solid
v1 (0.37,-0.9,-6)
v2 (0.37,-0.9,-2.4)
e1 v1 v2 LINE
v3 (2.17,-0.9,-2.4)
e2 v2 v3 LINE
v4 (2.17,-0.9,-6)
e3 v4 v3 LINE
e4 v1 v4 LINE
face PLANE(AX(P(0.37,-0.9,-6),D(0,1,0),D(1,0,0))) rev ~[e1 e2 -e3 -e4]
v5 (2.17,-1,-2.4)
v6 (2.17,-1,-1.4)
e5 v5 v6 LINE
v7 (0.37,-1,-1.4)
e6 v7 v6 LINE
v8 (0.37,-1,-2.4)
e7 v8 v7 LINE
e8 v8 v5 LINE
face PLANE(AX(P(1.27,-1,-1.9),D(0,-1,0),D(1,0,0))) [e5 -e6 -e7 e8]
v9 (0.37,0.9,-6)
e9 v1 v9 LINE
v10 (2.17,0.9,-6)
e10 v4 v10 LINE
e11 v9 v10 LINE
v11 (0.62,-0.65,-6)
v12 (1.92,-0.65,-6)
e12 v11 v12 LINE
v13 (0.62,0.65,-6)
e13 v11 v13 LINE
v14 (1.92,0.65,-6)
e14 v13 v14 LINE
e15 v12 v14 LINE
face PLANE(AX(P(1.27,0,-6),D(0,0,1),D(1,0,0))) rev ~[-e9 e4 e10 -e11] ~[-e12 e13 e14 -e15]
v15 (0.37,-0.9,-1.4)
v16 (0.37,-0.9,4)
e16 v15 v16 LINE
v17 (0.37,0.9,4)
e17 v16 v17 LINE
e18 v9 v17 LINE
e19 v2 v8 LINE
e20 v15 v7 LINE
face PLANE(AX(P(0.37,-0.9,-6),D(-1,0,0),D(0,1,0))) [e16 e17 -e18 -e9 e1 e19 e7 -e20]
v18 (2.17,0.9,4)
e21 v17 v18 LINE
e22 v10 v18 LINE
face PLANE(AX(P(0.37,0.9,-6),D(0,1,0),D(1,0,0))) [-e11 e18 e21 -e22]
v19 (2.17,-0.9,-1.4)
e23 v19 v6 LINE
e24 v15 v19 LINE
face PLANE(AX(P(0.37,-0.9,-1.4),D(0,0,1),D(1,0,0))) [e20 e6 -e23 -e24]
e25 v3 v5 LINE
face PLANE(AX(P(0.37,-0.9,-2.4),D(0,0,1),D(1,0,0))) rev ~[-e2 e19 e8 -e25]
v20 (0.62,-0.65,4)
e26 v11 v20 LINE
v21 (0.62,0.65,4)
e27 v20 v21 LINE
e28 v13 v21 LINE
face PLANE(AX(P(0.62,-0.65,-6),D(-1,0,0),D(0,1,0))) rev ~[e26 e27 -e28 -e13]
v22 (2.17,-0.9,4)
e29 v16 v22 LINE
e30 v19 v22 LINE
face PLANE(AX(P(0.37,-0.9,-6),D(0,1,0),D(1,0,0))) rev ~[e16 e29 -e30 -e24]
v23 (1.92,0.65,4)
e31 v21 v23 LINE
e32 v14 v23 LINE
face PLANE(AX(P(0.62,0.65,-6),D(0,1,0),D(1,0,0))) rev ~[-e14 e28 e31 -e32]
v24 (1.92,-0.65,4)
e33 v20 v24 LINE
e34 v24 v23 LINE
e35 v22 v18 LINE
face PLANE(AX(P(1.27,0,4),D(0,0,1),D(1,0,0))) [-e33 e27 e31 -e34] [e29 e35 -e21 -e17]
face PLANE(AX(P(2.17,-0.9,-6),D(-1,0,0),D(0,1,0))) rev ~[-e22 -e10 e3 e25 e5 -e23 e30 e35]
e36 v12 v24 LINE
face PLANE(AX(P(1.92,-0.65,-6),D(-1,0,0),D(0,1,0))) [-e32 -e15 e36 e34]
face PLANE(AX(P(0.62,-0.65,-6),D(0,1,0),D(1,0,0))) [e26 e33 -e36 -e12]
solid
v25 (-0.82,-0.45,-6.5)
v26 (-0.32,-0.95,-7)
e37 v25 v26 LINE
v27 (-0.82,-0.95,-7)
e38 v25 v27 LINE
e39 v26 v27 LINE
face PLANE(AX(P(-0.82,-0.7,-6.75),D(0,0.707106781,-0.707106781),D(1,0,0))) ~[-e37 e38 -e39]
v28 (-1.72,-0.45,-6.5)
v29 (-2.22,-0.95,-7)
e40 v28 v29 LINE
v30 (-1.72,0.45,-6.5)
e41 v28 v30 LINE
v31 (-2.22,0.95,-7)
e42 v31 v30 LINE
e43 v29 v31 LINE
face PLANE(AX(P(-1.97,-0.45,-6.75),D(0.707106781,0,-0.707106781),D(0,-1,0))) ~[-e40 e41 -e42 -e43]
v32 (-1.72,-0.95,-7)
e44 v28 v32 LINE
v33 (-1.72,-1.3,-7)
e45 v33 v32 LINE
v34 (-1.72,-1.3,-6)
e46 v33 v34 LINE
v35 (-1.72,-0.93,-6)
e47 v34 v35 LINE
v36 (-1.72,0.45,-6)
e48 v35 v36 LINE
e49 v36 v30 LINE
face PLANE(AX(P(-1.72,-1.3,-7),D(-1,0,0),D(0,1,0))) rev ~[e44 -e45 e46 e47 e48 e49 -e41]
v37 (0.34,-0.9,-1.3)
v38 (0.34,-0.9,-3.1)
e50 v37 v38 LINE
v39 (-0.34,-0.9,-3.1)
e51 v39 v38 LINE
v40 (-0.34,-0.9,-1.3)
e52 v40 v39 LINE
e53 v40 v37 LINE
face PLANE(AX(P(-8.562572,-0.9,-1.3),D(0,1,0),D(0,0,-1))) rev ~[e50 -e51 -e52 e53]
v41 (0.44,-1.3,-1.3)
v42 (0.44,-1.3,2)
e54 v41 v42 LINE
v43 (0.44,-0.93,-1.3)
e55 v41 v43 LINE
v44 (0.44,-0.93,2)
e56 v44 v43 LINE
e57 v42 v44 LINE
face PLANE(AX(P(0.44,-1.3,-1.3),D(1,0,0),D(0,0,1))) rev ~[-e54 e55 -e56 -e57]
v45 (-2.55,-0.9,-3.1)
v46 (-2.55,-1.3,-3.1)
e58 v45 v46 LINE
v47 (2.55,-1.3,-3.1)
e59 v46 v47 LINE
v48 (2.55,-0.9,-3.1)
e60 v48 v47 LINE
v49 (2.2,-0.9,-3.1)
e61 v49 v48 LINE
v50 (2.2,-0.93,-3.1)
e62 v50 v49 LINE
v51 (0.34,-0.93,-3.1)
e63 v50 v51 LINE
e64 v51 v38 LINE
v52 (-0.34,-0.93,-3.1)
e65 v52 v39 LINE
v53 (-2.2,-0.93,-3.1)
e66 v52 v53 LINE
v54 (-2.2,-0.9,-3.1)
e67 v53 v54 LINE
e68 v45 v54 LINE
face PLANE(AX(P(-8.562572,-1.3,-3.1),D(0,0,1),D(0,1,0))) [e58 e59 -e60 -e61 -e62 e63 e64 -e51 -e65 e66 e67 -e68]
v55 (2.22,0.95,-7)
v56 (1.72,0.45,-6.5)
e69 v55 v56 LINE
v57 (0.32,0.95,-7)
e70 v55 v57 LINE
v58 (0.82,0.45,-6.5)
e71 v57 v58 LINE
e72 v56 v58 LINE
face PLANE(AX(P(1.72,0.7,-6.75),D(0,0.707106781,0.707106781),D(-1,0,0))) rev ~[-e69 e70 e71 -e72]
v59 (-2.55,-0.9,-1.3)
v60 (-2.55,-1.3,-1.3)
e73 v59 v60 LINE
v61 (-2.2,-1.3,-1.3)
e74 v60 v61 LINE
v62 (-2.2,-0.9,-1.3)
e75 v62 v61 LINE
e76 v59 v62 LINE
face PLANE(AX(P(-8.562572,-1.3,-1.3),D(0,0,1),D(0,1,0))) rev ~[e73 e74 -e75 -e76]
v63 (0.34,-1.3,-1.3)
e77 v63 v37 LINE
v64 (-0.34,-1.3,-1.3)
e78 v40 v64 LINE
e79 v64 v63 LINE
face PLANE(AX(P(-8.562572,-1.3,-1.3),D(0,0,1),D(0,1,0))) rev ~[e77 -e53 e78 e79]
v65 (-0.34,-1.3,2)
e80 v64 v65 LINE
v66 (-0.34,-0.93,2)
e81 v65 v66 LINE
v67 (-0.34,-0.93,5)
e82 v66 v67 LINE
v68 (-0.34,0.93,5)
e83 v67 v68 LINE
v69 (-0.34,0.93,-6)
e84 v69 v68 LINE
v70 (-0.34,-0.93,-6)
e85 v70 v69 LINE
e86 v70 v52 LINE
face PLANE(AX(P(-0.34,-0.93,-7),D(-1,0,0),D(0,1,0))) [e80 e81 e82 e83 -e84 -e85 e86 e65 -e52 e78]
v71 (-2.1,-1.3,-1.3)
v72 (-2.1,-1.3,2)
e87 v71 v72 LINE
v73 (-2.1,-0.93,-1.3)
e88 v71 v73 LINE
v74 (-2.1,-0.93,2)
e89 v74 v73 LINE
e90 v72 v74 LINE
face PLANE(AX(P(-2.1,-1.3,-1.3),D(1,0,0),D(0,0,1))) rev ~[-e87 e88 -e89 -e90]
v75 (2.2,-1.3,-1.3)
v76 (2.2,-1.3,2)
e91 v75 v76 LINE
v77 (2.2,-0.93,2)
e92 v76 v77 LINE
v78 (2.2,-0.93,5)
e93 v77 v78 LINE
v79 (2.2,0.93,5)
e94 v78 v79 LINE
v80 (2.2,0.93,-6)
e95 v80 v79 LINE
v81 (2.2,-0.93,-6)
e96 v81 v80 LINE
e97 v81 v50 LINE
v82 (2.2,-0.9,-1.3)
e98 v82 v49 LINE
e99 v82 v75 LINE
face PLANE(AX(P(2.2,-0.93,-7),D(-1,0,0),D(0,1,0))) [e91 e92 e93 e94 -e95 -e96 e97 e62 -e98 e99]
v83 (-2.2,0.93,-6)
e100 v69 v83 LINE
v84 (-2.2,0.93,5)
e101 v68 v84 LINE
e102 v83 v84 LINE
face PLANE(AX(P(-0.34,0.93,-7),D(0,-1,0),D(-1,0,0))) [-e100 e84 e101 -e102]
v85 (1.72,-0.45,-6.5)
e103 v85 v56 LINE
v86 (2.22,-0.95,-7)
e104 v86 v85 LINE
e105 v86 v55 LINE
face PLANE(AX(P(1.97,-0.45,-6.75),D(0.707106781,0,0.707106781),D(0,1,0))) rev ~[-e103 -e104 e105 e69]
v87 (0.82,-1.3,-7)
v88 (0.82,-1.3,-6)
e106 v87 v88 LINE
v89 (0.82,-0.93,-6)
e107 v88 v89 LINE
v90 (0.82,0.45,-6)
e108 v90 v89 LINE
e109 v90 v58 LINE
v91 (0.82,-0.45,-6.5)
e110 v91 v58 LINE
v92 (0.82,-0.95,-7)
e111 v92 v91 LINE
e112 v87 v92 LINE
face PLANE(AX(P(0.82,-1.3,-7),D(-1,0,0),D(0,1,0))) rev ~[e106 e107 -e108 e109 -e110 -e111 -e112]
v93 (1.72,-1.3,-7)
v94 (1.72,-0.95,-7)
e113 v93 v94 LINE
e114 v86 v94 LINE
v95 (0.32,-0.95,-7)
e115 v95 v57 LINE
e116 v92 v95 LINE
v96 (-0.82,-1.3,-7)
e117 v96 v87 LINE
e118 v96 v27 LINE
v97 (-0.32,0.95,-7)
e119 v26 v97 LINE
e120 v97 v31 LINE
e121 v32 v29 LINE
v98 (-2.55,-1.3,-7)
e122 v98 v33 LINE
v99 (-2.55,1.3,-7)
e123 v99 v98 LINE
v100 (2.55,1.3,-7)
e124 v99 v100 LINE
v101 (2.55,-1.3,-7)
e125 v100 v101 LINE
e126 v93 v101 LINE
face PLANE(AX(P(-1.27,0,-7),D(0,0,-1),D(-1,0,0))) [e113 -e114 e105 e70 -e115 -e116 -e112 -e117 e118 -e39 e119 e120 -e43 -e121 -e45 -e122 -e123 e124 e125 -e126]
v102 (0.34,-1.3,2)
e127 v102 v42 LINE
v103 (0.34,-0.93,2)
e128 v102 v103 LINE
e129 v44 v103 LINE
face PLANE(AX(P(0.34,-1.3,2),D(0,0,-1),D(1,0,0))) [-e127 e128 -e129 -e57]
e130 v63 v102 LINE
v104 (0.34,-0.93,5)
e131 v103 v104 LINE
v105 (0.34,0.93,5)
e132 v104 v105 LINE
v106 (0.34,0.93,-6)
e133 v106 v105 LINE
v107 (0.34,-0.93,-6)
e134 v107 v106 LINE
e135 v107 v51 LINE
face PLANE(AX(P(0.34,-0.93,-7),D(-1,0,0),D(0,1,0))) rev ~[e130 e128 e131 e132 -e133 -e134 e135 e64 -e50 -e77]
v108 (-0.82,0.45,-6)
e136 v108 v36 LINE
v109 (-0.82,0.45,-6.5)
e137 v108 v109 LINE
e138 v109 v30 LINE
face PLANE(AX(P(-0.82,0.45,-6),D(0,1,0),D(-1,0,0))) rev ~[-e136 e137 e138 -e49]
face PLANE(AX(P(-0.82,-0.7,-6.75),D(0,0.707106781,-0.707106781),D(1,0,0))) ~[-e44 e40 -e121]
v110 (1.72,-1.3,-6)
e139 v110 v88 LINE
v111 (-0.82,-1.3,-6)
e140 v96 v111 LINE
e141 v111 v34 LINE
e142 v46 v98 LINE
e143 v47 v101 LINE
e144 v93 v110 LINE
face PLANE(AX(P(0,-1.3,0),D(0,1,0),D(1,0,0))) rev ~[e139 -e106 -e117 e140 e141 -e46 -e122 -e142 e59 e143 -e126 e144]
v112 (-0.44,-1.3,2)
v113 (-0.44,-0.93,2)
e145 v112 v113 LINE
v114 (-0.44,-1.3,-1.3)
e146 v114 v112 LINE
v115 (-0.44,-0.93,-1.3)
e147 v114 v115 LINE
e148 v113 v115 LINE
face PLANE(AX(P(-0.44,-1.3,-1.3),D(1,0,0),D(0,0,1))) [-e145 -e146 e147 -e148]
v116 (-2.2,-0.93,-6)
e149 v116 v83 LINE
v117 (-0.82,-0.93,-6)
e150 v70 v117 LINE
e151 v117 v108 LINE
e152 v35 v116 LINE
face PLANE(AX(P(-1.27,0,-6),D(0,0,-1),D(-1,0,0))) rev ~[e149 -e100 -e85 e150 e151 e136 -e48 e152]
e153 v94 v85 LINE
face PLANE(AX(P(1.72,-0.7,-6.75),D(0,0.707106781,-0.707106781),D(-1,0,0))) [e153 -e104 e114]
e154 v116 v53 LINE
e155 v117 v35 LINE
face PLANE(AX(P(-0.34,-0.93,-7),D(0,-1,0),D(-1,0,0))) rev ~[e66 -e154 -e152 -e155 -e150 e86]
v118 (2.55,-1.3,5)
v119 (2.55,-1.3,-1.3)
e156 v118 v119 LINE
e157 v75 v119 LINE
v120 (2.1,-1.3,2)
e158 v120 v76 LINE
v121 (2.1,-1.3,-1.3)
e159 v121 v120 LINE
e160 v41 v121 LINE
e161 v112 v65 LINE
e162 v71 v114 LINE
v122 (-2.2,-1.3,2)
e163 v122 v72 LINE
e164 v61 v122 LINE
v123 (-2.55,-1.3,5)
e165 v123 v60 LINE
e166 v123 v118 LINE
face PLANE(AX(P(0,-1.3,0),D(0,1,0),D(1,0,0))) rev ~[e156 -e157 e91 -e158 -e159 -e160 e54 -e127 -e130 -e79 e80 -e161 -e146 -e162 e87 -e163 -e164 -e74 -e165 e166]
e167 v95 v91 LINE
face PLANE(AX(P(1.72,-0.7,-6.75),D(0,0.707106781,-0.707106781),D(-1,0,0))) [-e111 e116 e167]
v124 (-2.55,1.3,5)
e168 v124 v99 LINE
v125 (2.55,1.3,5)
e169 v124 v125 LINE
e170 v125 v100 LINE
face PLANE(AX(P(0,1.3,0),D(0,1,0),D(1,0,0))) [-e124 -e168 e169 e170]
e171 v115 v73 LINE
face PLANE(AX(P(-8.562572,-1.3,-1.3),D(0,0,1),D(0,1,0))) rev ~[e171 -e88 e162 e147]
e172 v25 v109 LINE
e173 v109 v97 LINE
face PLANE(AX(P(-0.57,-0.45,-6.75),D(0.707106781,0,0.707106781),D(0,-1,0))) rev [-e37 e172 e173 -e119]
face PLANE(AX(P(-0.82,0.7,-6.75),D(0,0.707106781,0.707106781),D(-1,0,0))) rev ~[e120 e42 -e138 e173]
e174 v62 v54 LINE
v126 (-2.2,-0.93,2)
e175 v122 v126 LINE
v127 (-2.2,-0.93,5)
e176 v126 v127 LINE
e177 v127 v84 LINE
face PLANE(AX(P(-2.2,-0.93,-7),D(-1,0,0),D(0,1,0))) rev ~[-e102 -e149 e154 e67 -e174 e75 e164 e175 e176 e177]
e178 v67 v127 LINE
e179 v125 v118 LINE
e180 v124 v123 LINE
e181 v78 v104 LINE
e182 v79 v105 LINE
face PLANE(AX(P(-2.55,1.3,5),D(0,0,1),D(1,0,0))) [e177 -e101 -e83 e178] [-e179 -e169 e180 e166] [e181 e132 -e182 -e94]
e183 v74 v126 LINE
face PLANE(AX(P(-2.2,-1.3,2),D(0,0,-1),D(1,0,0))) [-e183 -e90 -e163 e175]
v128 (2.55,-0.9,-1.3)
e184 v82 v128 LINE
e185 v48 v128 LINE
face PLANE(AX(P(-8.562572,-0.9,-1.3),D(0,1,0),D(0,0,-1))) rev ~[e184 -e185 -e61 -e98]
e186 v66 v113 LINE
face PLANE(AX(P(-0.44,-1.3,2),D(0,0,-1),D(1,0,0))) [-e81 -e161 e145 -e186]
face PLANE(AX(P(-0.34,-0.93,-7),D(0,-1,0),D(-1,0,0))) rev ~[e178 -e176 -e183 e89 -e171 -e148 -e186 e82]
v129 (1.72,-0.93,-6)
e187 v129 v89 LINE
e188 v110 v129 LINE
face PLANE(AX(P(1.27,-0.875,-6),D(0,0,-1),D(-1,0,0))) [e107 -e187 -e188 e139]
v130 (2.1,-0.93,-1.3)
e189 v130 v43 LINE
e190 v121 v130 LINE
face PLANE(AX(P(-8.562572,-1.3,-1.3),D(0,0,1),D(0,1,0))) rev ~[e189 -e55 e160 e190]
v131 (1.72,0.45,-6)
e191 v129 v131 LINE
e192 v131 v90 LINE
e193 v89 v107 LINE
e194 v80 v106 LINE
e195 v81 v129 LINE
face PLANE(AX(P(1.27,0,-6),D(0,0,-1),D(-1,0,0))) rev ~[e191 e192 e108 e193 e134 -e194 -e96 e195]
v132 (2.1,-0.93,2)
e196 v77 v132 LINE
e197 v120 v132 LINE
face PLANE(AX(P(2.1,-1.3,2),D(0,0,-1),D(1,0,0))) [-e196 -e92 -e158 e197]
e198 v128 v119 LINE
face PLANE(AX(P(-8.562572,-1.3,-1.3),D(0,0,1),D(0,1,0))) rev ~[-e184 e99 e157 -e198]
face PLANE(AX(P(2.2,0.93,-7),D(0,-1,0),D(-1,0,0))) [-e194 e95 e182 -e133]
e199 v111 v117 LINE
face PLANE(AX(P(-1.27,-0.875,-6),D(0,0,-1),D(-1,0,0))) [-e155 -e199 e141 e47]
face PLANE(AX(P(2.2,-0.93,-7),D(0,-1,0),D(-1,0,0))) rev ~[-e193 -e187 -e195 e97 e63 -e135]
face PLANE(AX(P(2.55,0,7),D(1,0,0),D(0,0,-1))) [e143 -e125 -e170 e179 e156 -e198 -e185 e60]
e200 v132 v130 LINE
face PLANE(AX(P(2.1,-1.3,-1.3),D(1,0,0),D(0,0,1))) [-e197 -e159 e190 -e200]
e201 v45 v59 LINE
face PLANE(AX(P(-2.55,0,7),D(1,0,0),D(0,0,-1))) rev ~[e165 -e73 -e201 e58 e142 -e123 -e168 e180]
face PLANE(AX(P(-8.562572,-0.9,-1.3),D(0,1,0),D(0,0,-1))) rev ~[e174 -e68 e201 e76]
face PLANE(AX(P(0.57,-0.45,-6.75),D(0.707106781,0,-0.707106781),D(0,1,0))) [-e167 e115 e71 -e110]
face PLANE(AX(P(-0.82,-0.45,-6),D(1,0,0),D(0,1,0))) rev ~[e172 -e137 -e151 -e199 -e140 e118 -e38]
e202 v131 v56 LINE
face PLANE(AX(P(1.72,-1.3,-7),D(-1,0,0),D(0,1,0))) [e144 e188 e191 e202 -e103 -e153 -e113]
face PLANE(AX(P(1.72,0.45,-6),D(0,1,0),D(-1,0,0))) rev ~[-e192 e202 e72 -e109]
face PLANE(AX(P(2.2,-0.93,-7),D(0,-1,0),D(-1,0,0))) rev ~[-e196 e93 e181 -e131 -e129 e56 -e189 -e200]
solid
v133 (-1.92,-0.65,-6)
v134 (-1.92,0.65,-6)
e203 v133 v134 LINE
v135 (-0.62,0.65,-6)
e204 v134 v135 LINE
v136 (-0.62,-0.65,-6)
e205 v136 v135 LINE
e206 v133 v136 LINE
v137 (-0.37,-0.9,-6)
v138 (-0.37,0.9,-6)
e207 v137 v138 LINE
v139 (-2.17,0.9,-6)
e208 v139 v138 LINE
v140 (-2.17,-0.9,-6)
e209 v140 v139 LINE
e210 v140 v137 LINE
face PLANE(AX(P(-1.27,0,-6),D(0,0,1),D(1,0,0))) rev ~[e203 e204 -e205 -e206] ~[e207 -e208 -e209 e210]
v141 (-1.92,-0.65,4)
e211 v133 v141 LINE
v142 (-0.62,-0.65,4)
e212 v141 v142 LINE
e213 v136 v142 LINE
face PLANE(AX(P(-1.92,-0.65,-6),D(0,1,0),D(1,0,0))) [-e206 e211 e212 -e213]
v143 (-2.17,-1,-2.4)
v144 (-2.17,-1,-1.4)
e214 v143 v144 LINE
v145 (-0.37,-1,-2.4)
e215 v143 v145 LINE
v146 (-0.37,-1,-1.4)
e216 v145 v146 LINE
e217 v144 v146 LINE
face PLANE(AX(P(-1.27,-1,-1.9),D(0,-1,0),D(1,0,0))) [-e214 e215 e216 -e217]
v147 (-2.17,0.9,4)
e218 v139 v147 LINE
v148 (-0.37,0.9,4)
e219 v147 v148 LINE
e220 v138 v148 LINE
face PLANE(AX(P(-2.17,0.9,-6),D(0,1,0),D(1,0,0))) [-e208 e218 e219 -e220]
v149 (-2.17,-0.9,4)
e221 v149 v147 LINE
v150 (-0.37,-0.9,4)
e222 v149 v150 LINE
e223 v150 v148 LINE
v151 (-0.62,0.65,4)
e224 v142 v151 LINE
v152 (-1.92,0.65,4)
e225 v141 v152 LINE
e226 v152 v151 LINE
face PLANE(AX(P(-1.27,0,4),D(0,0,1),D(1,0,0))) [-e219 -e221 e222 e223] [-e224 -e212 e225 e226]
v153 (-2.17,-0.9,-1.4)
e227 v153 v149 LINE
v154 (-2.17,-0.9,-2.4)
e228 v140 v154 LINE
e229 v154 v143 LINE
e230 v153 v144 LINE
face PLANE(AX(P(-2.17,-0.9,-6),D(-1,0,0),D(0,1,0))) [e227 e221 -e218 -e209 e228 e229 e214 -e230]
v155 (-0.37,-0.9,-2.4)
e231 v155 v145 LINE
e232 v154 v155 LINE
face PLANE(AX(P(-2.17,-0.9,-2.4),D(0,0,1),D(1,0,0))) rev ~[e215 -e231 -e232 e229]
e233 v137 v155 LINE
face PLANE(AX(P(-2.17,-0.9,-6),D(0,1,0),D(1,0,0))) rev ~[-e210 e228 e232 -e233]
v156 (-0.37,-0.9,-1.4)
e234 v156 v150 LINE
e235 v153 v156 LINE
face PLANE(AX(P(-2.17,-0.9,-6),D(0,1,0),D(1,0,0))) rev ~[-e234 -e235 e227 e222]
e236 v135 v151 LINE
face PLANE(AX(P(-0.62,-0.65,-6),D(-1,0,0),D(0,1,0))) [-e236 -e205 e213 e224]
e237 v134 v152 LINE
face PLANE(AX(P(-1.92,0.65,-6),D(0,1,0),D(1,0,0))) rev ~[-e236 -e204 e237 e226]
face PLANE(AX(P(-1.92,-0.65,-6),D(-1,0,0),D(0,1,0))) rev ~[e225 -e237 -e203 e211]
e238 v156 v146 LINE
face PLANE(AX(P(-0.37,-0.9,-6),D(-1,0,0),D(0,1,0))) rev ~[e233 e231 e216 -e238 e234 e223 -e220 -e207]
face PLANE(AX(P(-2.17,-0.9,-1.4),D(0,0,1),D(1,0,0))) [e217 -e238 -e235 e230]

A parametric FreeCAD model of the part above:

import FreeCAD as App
import Part
import Sketcher

V = App.Vector
Q = App.Units.Quantity


def edges_at(feature, points):
    """Names of the edges that pass closest to the given points."""
    edges = feature.Shape.Edges
    near = lambda p: min(range(len(edges)), key=lambda i: edges[i].distToShape(Part.Vertex(*p))[0])
    return sorted({f"Edge{near(p) + 1}" for p in points})

doc = App.newDocument("Part")
params = doc.addObject("Spreadsheet::Sheet", "Params")
for row, (alias, value) in enumerate([
    ("sketch1_height", "14 mm"),
    ("sketch1_width", "5.1 mm"),
    ("pad1_length", "2.6 mm"),
    ("sketch2_width", "1.86 mm"),
    ("sketch3_width", "0.4 mm"),
    ("sketch3_height", "1.8 mm"),
    ("sketch4_width", "0.1 mm"),
    ("sketch4_height", "3.3 mm"),
    ("sketch5_width", "0.1 mm"),
    ("sketch5_height", "3.3 mm"),
    ("sketch6_width", "0.1 mm"),
    ("sketch6_height", "3.3 mm"),
    ("sketch7_width", "0.1 mm"),
    ("sketch7_height", "3.3 mm"),
    ("sketch8_width", "0.9 mm"),
    ("sketch8_width2", "1.86 mm"),
    ("pad2_length", "1 mm"),
    ("chamfer_size", "0.5 mm"),
    ("sketch9_height", "2 mm"),
    ("sketch9_width", "5.1 mm"),
    ("sketch10_width", "0.9 mm"),
    ("sketch10_height", "0.85 mm"),
    ("pocket8_length", "1 mm"),
    ("sketch11_width", "1.8 mm"),
    ("sketch11_width2", "1.3 mm"),
    ("pad3_length", "10 mm"),
    ("sketch12_width", "1.8 mm"),
    ("sketch12_width2", "1.3 mm"),
    ("pad4_length", "10 mm"),
    ("sketch13_height", "1 mm"),
    ("sketch13_width", "1.8 mm"),
    ("pad5_length", "0.1 mm"),
], start=1):
    params.set(f"A{row}", alias)
    params.set(f"B{row}", "=" + value)
    params.setAlias(f"B{row}", alias)

body = doc.addObject("PartDesign::Body", "Body")

# Sketch on XZ plane
sketch1 = doc.addObject("Sketcher::SketchObject", "Sketch")
body.addObject(sketch1)
sketch1.AttachmentSupport = (doc.XZ_Plane, [""])
sketch1.MapMode = "FlatFace"
sketch1.addGeometry([
    Part.LineSegment(V(-3, -7, 0), V(-3, 7, 0)),
    Part.LineSegment(V(-3, 7, 0), V(3, 7, 0)),
    Part.LineSegment(V(3, 7, 0), V(3, -7, 0)),
    Part.LineSegment(V(3, -7, 0), V(-3, -7, 0)),
], False)
sketch1.addConstraint([
    Sketcher.Constraint("Coincident", 0, 2, 1, 1),
    Sketcher.Constraint("Coincident", 1, 2, 2, 1),
    Sketcher.Constraint("Coincident", 2, 2, 3, 1),
    Sketcher.Constraint("Coincident", 3, 2, 0, 1),
    Sketcher.Constraint("Vertical", 0),
    Sketcher.Constraint("Horizontal", 1),
    Sketcher.Constraint("Vertical", 2),
    Sketcher.Constraint("Horizontal", 3),
    Sketcher.Constraint("Symmetric", 0, 2, 2, 2, -1, 1),
    Sketcher.Constraint("DistanceY", 0, 1, 0, 2, Q("14 mm")),
    Sketcher.Constraint("DistanceX", 1, 1, 1, 2, Q("5.1 mm")),
])
sketch1.setExpression("Constraints[9]", "Params.sketch1_height")
sketch1.setExpression("Constraints[10]", "Params.sketch1_width")
pad1 = doc.addObject("PartDesign::Pad", "Pad")
body.addObject(pad1)
pad1.Profile = sketch1
pad1.setExpression("Length", "Params.pad1_length")
pad1.Midplane = True

# Sketch on XY plane
sketch2 = doc.addObject("Sketcher::SketchObject", "Sketch001")
body.addObject(sketch2)
sketch2.AttachmentSupport = (doc.XY_Plane, [""])
sketch2.MapMode = "FlatFace"
sketch2.AttachmentOffset = App.Placement(V(0, 0, -7), App.Rotation())
sketch2.addGeometry([
    Part.LineSegment(V(2.2, 0.9, 0), V(2.2, -0.9, 0)),  # 0
    Part.LineSegment(V(2.2, -0.9, 0), V(0.3, -0.9, 0)),  # 1
    Part.LineSegment(V(0.3, -0.9, 0), V(0.3, 0.9, 0)),  # 2
    Part.LineSegment(V(0.3, 0.9, 0), V(2.2, 0.9, 0)),  # 3
    Part.LineSegment(V(-0.3, 0.9, 0), V(-0.3, -0.9, 0)),  # 4
    Part.LineSegment(V(-0.3, -0.9, 0), V(-2.2, -0.9, 0)),  # 5
    Part.LineSegment(V(-2.2, -0.9, 0), V(-2.2, 0.9, 0)),  # 6
    Part.LineSegment(V(-2.2, 0.9, 0), V(-0.3, 0.9, 0)),  # 7
], False)
sketch2.addConstraint([
    Sketcher.Constraint("Coincident", 0, 2, 1, 1),
    Sketcher.Constraint("Coincident", 1, 2, 2, 1),
    Sketcher.Constraint("Coincident", 2, 2, 3, 1),
    Sketcher.Constraint("Coincident", 3, 2, 0, 1),
    Sketcher.Constraint("Coincident", 4, 2, 5, 1),
    Sketcher.Constraint("Coincident", 5, 2, 6, 1),
    Sketcher.Constraint("Coincident", 6, 2, 7, 1),
    Sketcher.Constraint("Coincident", 7, 2, 4, 1),
    Sketcher.Constraint("Vertical", 0),
    Sketcher.Constraint("Horizontal", 1),
    Sketcher.Constraint("Vertical", 2),
    Sketcher.Constraint("Horizontal", 3),
    Sketcher.Constraint("Vertical", 4),
    Sketcher.Constraint("Horizontal", 5),
    Sketcher.Constraint("Vertical", 6),
    Sketcher.Constraint("Horizontal", 7),
    Sketcher.Constraint("Symmetric", 2, 2, 4, 2, -1, 1),
    Sketcher.Constraint("Symmetric", 0, 2, 6, 2, -1, 1),
    Sketcher.Constraint("Horizontal", 1, 2, 4, 2),
    Sketcher.Constraint("Equal", 7, 0),
    Sketcher.Constraint("DistanceX", 1, 2, 1, 1, Q("1.86 mm")),
    Sketcher.Constraint("DistanceX", -1, 1, 0, 2, Q("2.2 mm")),
])
sketch2.setExpression("Constraints[20]", "Params.sketch2_width")
pocket1 = doc.addObject("PartDesign::Pocket", "Pocket")
body.addObject(pocket1)
pocket1.Profile = sketch2
pocket1.Type = "ThroughAll"
pocket1.Reversed = True

# Sketch on YZ plane
sketch3 = doc.addObject("Sketcher::SketchObject", "Sketch002")
body.addObject(sketch3)
sketch3.AttachmentSupport = (doc.YZ_Plane, [""])
sketch3.MapMode = "FlatFace"
sketch3.addGeometry([
    Part.LineSegment(V(-0.9, -1.3, 0), V(-1.3, -1.3, 0)),
    Part.LineSegment(V(-1.3, -1.3, 0), V(-1.3, -3.1, 0)),
    Part.LineSegment(V(-1.3, -3.1, 0), V(-0.9, -3.1, 0)),
    Part.LineSegment(V(-0.9, -3.1, 0), V(-0.9, -1.3, 0)),
], False)
sketch3.addConstraint([
    Sketcher.Constraint("Coincident", 0, 2, 1, 1),
    Sketcher.Constraint("Coincident", 1, 2, 2, 1),
    Sketcher.Constraint("Coincident", 2, 2, 3, 1),
    Sketcher.Constraint("Coincident", 3, 2, 0, 1),
    Sketcher.Constraint("Horizontal", 0),
    Sketcher.Constraint("Vertical", 1),
    Sketcher.Constraint("Horizontal", 2),
    Sketcher.Constraint("Vertical", 3),
    Sketcher.Constraint("DistanceX", 0, 2, 0, 1, Q("0.4 mm")),
    Sketcher.Constraint("DistanceY", 1, 2, 1, 1, Q("1.8 mm")),
    Sketcher.Constraint("DistanceX", 0, 2, -1, 1, Q("1.3 mm")),
    Sketcher.Constraint("DistanceY", 0, 2, -1, 1, Q("1.3 mm")),
])
sketch3.setExpression("Constraints[8]", "Params.sketch3_width")
sketch3.setExpression("Constraints[9]", "Params.sketch3_height")
pocket2 = doc.addObject("PartDesign::Pocket", "Pocket001")
body.addObject(pocket2)
pocket2.Profile = sketch3
pocket2.Type = "ThroughAll"
pocket2.Midplane = True

# Sketch on XZ plane
sketch4 = doc.addObject("Sketcher::SketchObject", "Sketch003")
body.addObject(sketch4)
sketch4.AttachmentSupport = (doc.XZ_Plane, [""])
sketch4.MapMode = "FlatFace"
sketch4.AttachmentOffset = App.Placement(V(0, 0, 1.3), App.Rotation())
sketch4.addGeometry([
    Part.LineSegment(V(-2.2, 2, 0), V(-2.2, -1.3, 0)),
    Part.LineSegment(V(-2.2, -1.3, 0), V(-2.1, -1.3, 0)),
    Part.LineSegment(V(-2.1, -1.3, 0), V(-2.1, 2, 0)),
    Part.LineSegment(V(-2.1, 2, 0), V(-2.2, 2, 0)),
], False)
sketch4.addConstraint([
    Sketcher.Constraint("Coincident", 0, 2, 1, 1),
    Sketcher.Constraint("Coincident", 1, 2, 2, 1),
    Sketcher.Constraint("Coincident", 2, 2, 3, 1),
    Sketcher.Constraint("Coincident", 3, 2, 0, 1),
    Sketcher.Constraint("Vertical", 0),
    Sketcher.Constraint("Horizontal", 1),
    Sketcher.Constraint("Vertical", 2),
    Sketcher.Constraint("Horizontal", 3),
    Sketcher.Constraint("DistanceX", 1, 1, 1, 2, Q("0.1 mm")),
    Sketcher.Constraint("DistanceY", 0, 2, 0, 1, Q("3.3 mm")),
    Sketcher.Constraint("DistanceY", -1, 1, 2, 2, Q("2 mm")),
    Sketcher.Constraint("DistanceX", 0, 2, -1, 1, Q("2.2 mm")),
])
sketch4.setExpression("Constraints[8]", "Params.sketch4_width")
sketch4.setExpression("Constraints[9]", "Params.sketch4_height")
pocket3 = doc.addObject("PartDesign::Pocket", "Pocket002")
body.addObject(pocket3)
pocket3.Profile = sketch4
pocket3.Type = "UpToFirst"

# Sketch on XZ plane
sketch5 = doc.addObject("Sketcher::SketchObject", "Sketch004")
body.addObject(sketch5)
sketch5.AttachmentSupport = (doc.XZ_Plane, [""])
sketch5.MapMode = "FlatFace"
sketch5.AttachmentOffset = App.Placement(V(0, 0, 1.3), App.Rotation())
sketch5.addGeometry([
    Part.LineSegment(V(-0.44, 2, 0), V(-0.44, -1.3, 0)),
    Part.LineSegment(V(-0.44, -1.3, 0), V(-0.34, -1.3, 0)),
    Part.LineSegment(V(-0.34, -1.3, 0), V(-0.34, 2, 0)),
    Part.LineSegment(V(-0.34, 2, 0), V(-0.44, 2, 0)),
], False)
sketch5.addConstraint([
    Sketcher.Constraint("Coincident", 0, 2, 1, 1),
    Sketcher.Constraint("Coincident", 1, 2, 2, 1),
    Sketcher.Constraint("Coincident", 2, 2, 3, 1),
    Sketcher.Constraint("Coincident", 3, 2, 0, 1),
    Sketcher.Constraint("Vertical", 0),
    Sketcher.Constraint("Horizontal", 1),
    Sketcher.Constraint("Vertical", 2),
    Sketcher.Constraint("Horizontal", 3),
    Sketcher.Constraint("DistanceX", 1, 1, 1, 2, Q("0.1 mm")),
    Sketcher.Constraint("DistanceY", 0, 2, 0, 1, Q("3.3 mm")),
    Sketcher.Constraint("DistanceY", -1, 1, 2, 2, Q("2 mm")),
    Sketcher.Constraint("DistanceX", 0, 2, -1, 1, Q("0.44 mm")),
])
sketch5.setExpression("Constraints[8]", "Params.sketch5_width")
sketch5.setExpression("Constraints[9]", "Params.sketch5_height")
pocket4 = doc.addObject("PartDesign::Pocket", "Pocket003")
body.addObject(pocket4)
pocket4.Profile = sketch5
pocket4.Type = "UpToFirst"

# Sketch on XZ plane
sketch6 = doc.addObject("Sketcher::SketchObject", "Sketch005")
body.addObject(sketch6)
sketch6.AttachmentSupport = (doc.XZ_Plane, [""])
sketch6.MapMode = "FlatFace"
sketch6.AttachmentOffset = App.Placement(V(0, 0, 1.3), App.Rotation())
sketch6.addGeometry([
    Part.LineSegment(V(0.34, 2, 0), V(0.34, -1.3, 0)),
    Part.LineSegment(V(0.34, -1.3, 0), V(0.44, -1.3, 0)),
    Part.LineSegment(V(0.44, -1.3, 0), V(0.44, 2, 0)),
    Part.LineSegment(V(0.44, 2, 0), V(0.34, 2, 0)),
], False)
sketch6.addConstraint([
    Sketcher.Constraint("Coincident", 0, 2, 1, 1),
    Sketcher.Constraint("Coincident", 1, 2, 2, 1),
    Sketcher.Constraint("Coincident", 2, 2, 3, 1),
    Sketcher.Constraint("Coincident", 3, 2, 0, 1),
    Sketcher.Constraint("Vertical", 0),
    Sketcher.Constraint("Horizontal", 1),
    Sketcher.Constraint("Vertical", 2),
    Sketcher.Constraint("Horizontal", 3),
    Sketcher.Constraint("DistanceX", 1, 1, 1, 2, Q("0.1 mm")),
    Sketcher.Constraint("DistanceY", 0, 2, 0, 1, Q("3.3 mm")),
    Sketcher.Constraint("DistanceY", -1, 1, 2, 2, Q("2 mm")),
    Sketcher.Constraint("DistanceX", -1, 1, 0, 2, Q("0.34 mm")),
])
sketch6.setExpression("Constraints[8]", "Params.sketch6_width")
sketch6.setExpression("Constraints[9]", "Params.sketch6_height")
pocket5 = doc.addObject("PartDesign::Pocket", "Pocket004")
body.addObject(pocket5)
pocket5.Profile = sketch6
pocket5.Type = "UpToFirst"

# Sketch on XZ plane
sketch7 = doc.addObject("Sketcher::SketchObject", "Sketch006")
body.addObject(sketch7)
sketch7.AttachmentSupport = (doc.XZ_Plane, [""])
sketch7.MapMode = "FlatFace"
sketch7.AttachmentOffset = App.Placement(V(0, 0, 1.3), App.Rotation())
sketch7.addGeometry([
    Part.LineSegment(V(2.1, 2, 0), V(2.1, -1.3, 0)),
    Part.LineSegment(V(2.1, -1.3, 0), V(2.2, -1.3, 0)),
    Part.LineSegment(V(2.2, -1.3, 0), V(2.2, 2, 0)),
    Part.LineSegment(V(2.2, 2, 0), V(2.1, 2, 0)),
], False)
sketch7.addConstraint([
    Sketcher.Constraint("Coincident", 0, 2, 1, 1),
    Sketcher.Constraint("Coincident", 1, 2, 2, 1),
    Sketcher.Constraint("Coincident", 2, 2, 3, 1),
    Sketcher.Constraint("Coincident", 3, 2, 0, 1),
    Sketcher.Constraint("Vertical", 0),
    Sketcher.Constraint("Horizontal", 1),
    Sketcher.Constraint("Vertical", 2),
    Sketcher.Constraint("Horizontal", 3),
    Sketcher.Constraint("DistanceX", 1, 1, 1, 2, Q("0.1 mm")),
    Sketcher.Constraint("DistanceY", 0, 2, 0, 1, Q("3.3 mm")),
    Sketcher.Constraint("DistanceY", -1, 1, 2, 2, Q("2 mm")),
    Sketcher.Constraint("DistanceX", -1, 1, 0, 2, Q("2.1 mm")),
])
sketch7.setExpression("Constraints[8]", "Params.sketch7_width")
sketch7.setExpression("Constraints[9]", "Params.sketch7_height")
pocket6 = doc.addObject("PartDesign::Pocket", "Pocket005")
body.addObject(pocket6)
pocket6.Profile = sketch7
pocket6.Type = "UpToFirst"

# Sketch on XY plane
sketch8 = doc.addObject("Sketcher::SketchObject", "Sketch007")
body.addObject(sketch8)
sketch8.AttachmentSupport = (doc.XY_Plane, [""])
sketch8.MapMode = "FlatFace"
sketch8.AttachmentOffset = App.Placement(V(0, 0, -6), App.Rotation())
sketch8.addGeometry([
    Part.LineSegment(V(-0.3, 0.9, 0), V(-0.3, -0.9, 0)),  # 0
    Part.LineSegment(V(-0.3, -0.9, 0), V(-2.2, -0.9, 0)),  # 1
    Part.LineSegment(V(-2.2, -0.9, 0), V(-2.2, 0.9, 0)),  # 2
    Part.LineSegment(V(-2.2, 0.9, 0), V(-0.3, 0.9, 0)),  # 3
    Part.LineSegment(V(-1.7, -0.5, 0), V(-0.8, -0.5, 0)),  # 4
    Part.LineSegment(V(-0.8, -0.5, 0), V(-0.8, 0.5, 0)),  # 5
    Part.LineSegment(V(-0.8, 0.5, 0), V(-1.7, 0.5, 0)),  # 6
    Part.LineSegment(V(-1.7, 0.5, 0), V(-1.7, -0.5, 0)),  # 7
    Part.LineSegment(V(2.2, 0.9, 0), V(2.2, -0.9, 0)),  # 8
    Part.LineSegment(V(2.2, -0.9, 0), V(0.3, -0.9, 0)),  # 9
    Part.LineSegment(V(0.3, -0.9, 0), V(0.3, 0.9, 0)),  # 10
    Part.LineSegment(V(0.3, 0.9, 0), V(2.2, 0.9, 0)),  # 11
    Part.LineSegment(V(0.8, -0.5, 0), V(1.7, -0.5, 0)),  # 12
    Part.LineSegment(V(1.7, -0.5, 0), V(1.7, 0.5, 0)),  # 13
    Part.LineSegment(V(1.7, 0.5, 0), V(0.8, 0.5, 0)),  # 14
    Part.LineSegment(V(0.8, 0.5, 0), V(0.8, -0.5, 0)),  # 15
], False)
sketch8.addConstraint([
    Sketcher.Constraint("Coincident", 0, 2, 1, 1),
    Sketcher.Constraint("Coincident", 1, 2, 2, 1),
    Sketcher.Constraint("Coincident", 2, 2, 3, 1),
    Sketcher.Constraint("Coincident", 3, 2, 0, 1),
    Sketcher.Constraint("Coincident", 4, 2, 5, 1),
    Sketcher.Constraint("Coincident", 5, 2, 6, 1),
    Sketcher.Constraint("Coincident", 6, 2, 7, 1),
    Sketcher.Constraint("Coincident", 7, 2, 4, 1),
    Sketcher.Constraint("Coincident", 8, 2, 9, 1),
    Sketcher.Constraint("Coincident", 9, 2, 10, 1),
    Sketcher.Constraint("Coincident", 10, 2, 11, 1),
    Sketcher.Constraint("Coincident", 11, 2, 8, 1),
    Sketcher.Constraint("Coincident", 12, 2, 13, 1),
    Sketcher.Constraint("Coincident", 13, 2, 14, 1),
    Sketcher.Constraint("Coincident", 14, 2, 15, 1),
    Sketcher.Constraint("Coincident", 15, 2, 12, 1),
    Sketcher.Constraint("Vertical", 0),
    Sketcher.Constraint("Horizontal", 1),
    Sketcher.Constraint("Vertical", 2),
    Sketcher.Constraint("Horizontal", 3),
    Sketcher.Constraint("Horizontal", 4),
    Sketcher.Constraint("Vertical", 5),
    Sketcher.Constraint("Horizontal", 6),
    Sketcher.Constraint("Vertical", 7),
    Sketcher.Constraint("Vertical", 8),
    Sketcher.Constraint("Horizontal", 9),
    Sketcher.Constraint("Vertical", 10),
    Sketcher.Constraint("Horizontal", 11),
    Sketcher.Constraint("Horizontal", 12),
    Sketcher.Constraint("Vertical", 13),
    Sketcher.Constraint("Horizontal", 14),
    Sketcher.Constraint("Vertical", 15),
    Sketcher.Constraint("Symmetric", 2, 2, 8, 2, -1, 1),
    Sketcher.Constraint("Symmetric", 0, 2, 10, 2, -1, 1),
    Sketcher.Constraint("Symmetric", 6, 2, 12, 2, -1, 1),
    Sketcher.Constraint("Symmetric", 4, 2, 14, 2, -1, 1),
    Sketcher.Constraint("Horizontal", 1, 2, 8, 2),
    Sketcher.Constraint("Horizontal", 7, 2, 12, 2),
    Sketcher.Constraint("Equal", 11, 0),
    Sketcher.Constraint("Equal", 14, 5),
    Sketcher.Constraint("DistanceX", 4, 1, 4, 2, Q("0.9 mm")),
    Sketcher.Constraint("DistanceX", 1, 2, 1, 1, Q("1.86 mm")),
    Sketcher.Constraint("DistanceX", 1, 2, -1, 1, Q("2.2 mm")),
    Sketcher.Constraint("DistanceX", 4, 2, -1, 1, Q("0.82 mm")),
])
sketch8.setExpression("Constraints[40]", "Params.sketch8_width")
sketch8.setExpression("Constraints[41]", "Params.sketch8_width2")
pad2 = doc.addObject("PartDesign::Pad", "Pad001")
body.addObject(pad2)
pad2.Profile = sketch8
pad2.setExpression("Length", "Params.pad2_length")
pad2.Reversed = True
doc.recompute()

chamfer = doc.addObject("PartDesign::Chamfer", "Chamfer")
body.addObject(chamfer)
chamfer.Base = (pad2, edges_at(pad2, [
    (-0.82, 0, -7),
    (-1.27, 0.45, -7),
    (-1.72, 0, -7),
    (-1.27, -0.45, -7),
    (1.72, 0, -7),
    (1.27, 0.45, -7),
    (0.82, 0, -7),
    (1.27, -0.45, -7),
]))
chamfer.setExpression("Size", "Params.chamfer_size")

# Sketch on XZ plane
sketch9 = doc.addObject("Sketcher::SketchObject", "Sketch008")
body.addObject(sketch9)
sketch9.AttachmentSupport = (doc.XZ_Plane, [""])
sketch9.MapMode = "FlatFace"
sketch9.AttachmentOffset = App.Placement(V(0, 0, -1.3), App.Rotation())
sketch9.addGeometry([
    Part.LineSegment(V(-2.5, 5, 0), V(-2.5, 7, 0)),
    Part.LineSegment(V(-2.5, 7, 0), V(2.5, 7, 0)),
    Part.LineSegment(V(2.5, 7, 0), V(2.5, 5, 0)),
    Part.LineSegment(V(2.5, 5, 0), V(-2.5, 5, 0)),
], False)
sketch9.addConstraint([
    Sketcher.Constraint("Coincident", 0, 2, 1, 1),
    Sketcher.Constraint("Coincident", 1, 2, 2, 1),
    Sketcher.Constraint("Coincident", 2, 2, 3, 1),
    Sketcher.Constraint("Coincident", 3, 2, 0, 1),
    Sketcher.Constraint("Vertical", 0),
    Sketcher.Constraint("Horizontal", 1),
    Sketcher.Constraint("Vertical", 2),
    Sketcher.Constraint("Horizontal", 3),
    Sketcher.Constraint("DistanceY", 0, 1, 0, 2, Q("2 mm")),
    Sketcher.Constraint("DistanceX", 1, 1, 1, 2, Q("5.1 mm")),
    Sketcher.Constraint("DistanceY", -1, 1, 0, 2, Q("7 mm")),
    Sketcher.Constraint("DistanceX", 0, 2, -1, 1, Q("2.55 mm")),
])
sketch9.setExpression("Constraints[8]", "Params.sketch9_height")
sketch9.setExpression("Constraints[9]", "Params.sketch9_width")
pocket7 = doc.addObject("PartDesign::Pocket", "Pocket006")
body.addObject(pocket7)
pocket7.Profile = sketch9
pocket7.Type = "ThroughAll"
pocket7.Reversed = True

# Sketch on XY plane
sketch10 = doc.addObject("Sketcher::SketchObject", "Sketch009")
body.addObject(sketch10)
sketch10.AttachmentSupport = (doc.XY_Plane, [""])
sketch10.MapMode = "FlatFace"
sketch10.AttachmentOffset = App.Placement(V(0, 0, -7), App.Rotation())
sketch10.addGeometry([
    Part.LineSegment(V(1.7, -0.5, 0), V(1.7, -1.3, 0)),  # 0
    Part.LineSegment(V(1.7, -1.3, 0), V(0.8, -1.3, 0)),  # 1
    Part.LineSegment(V(0.8, -1.3, 0), V(0.8, -0.5, 0)),  # 2
    Part.LineSegment(V(0.8, -0.5, 0), V(1.7, -0.5, 0)),  # 3
    Part.LineSegment(V(-0.8, -0.5, 0), V(-0.8, -1.3, 0)),  # 4
    Part.LineSegment(V(-0.8, -1.3, 0), V(-1.7, -1.3, 0)),  # 5
    Part.LineSegment(V(-1.7, -1.3, 0), V(-1.7, -0.5, 0)),  # 6
    Part.LineSegment(V(-1.7, -0.5, 0), V(-0.8, -0.5, 0)),  # 7
], False)
sketch10.addConstraint([
    Sketcher.Constraint("Coincident", 0, 2, 1, 1),
    Sketcher.Constraint("Coincident", 1, 2, 2, 1),
    Sketcher.Constraint("Coincident", 2, 2, 3, 1),
    Sketcher.Constraint("Coincident", 3, 2, 0, 1),
    Sketcher.Constraint("Coincident", 4, 2, 5, 1),
    Sketcher.Constraint("Coincident", 5, 2, 6, 1),
    Sketcher.Constraint("Coincident", 6, 2, 7, 1),
    Sketcher.Constraint("Coincident", 7, 2, 4, 1),
    Sketcher.Constraint("Vertical", 0),
    Sketcher.Constraint("Horizontal", 1),
    Sketcher.Constraint("Vertical", 2),
    Sketcher.Constraint("Horizontal", 3),
    Sketcher.Constraint("Vertical", 4),
    Sketcher.Constraint("Horizontal", 5),
    Sketcher.Constraint("Vertical", 6),
    Sketcher.Constraint("Horizontal", 7),
    Sketcher.Constraint("Symmetric", 1, 2, 4, 2, -2),
    Sketcher.Constraint("Symmetric", 3, 2, 6, 2, -2),
    Sketcher.Constraint("DistanceX", 1, 2, 1, 1, Q("0.9 mm")),
    Sketcher.Constraint("DistanceY", 0, 2, 0, 1, Q("0.85 mm")),
    Sketcher.Constraint("DistanceY", 0, 2, -1, 1, Q("1.3 mm")),
    Sketcher.Constraint("DistanceX", -1, 1, 0, 2, Q("1.72 mm")),
])
sketch10.setExpression("Constraints[18]", "Params.sketch10_width")
sketch10.setExpression("Constraints[19]", "Params.sketch10_height")
pocket8 = doc.addObject("PartDesign::Pocket", "Pocket007")
body.addObject(pocket8)
pocket8.Profile = sketch10
pocket8.setExpression("Length", "Params.pocket8_length")
pocket8.Reversed = True
body2 = doc.addObject("PartDesign::Body", "Body001")

# Sketch on XY plane
sketch11 = doc.addObject("Sketcher::SketchObject", "Sketch010")
body2.addObject(sketch11)
sketch11.AttachmentSupport = (doc.getObject("XY_Plane001"), [""])
sketch11.MapMode = "FlatFace"
sketch11.AttachmentOffset = App.Placement(V(0, 0, -6), App.Rotation())
sketch11.addGeometry([
    Part.LineSegment(V(-2.2, 0.9, 0), V(-2.2, -0.9, 0)),  # 0
    Part.LineSegment(V(-2.2, -0.9, 0), V(-0.4, -0.9, 0)),  # 1
    Part.LineSegment(V(-0.4, -0.9, 0), V(-0.4, 0.9, 0)),  # 2
    Part.LineSegment(V(-0.4, 0.9, 0), V(-2.2, 0.9, 0)),  # 3
    Part.LineSegment(V(-0.6, -0.7, 0), V(-1.9, -0.7, 0)),  # 4
    Part.LineSegment(V(-1.9, -0.7, 0), V(-1.9, 0.7, 0)),  # 5
    Part.LineSegment(V(-1.9, 0.7, 0), V(-0.6, 0.7, 0)),  # 6
    Part.LineSegment(V(-0.6, 0.7, 0), V(-0.6, -0.7, 0)),  # 7
], False)
sketch11.addConstraint([
    Sketcher.Constraint("Coincident", 0, 2, 1, 1),
    Sketcher.Constraint("Coincident", 1, 2, 2, 1),
    Sketcher.Constraint("Coincident", 2, 2, 3, 1),
    Sketcher.Constraint("Coincident", 3, 2, 0, 1),
    Sketcher.Constraint("Coincident", 4, 2, 5, 1),
    Sketcher.Constraint("Coincident", 5, 2, 6, 1),
    Sketcher.Constraint("Coincident", 6, 2, 7, 1),
    Sketcher.Constraint("Coincident", 7, 2, 4, 1),
    Sketcher.Constraint("Vertical", 0),
    Sketcher.Constraint("Horizontal", 1),
    Sketcher.Constraint("Vertical", 2),
    Sketcher.Constraint("Horizontal", 3),
    Sketcher.Constraint("Horizontal", 4),
    Sketcher.Constraint("Vertical", 5),
    Sketcher.Constraint("Horizontal", 6),
    Sketcher.Constraint("Vertical", 7),
    Sketcher.Constraint("Equal", 3, 0),
    Sketcher.Constraint("Equal", 6, 5),
    Sketcher.Constraint("DistanceX", 1, 1, 1, 2, Q("1.8 mm")),
    Sketcher.Constraint("DistanceX", 4, 2, 4, 1, Q("1.3 mm")),
    Sketcher.Constraint("DistanceY", 0, 2, -1, 1, Q("0.9 mm")),
    Sketcher.Constraint("DistanceX", 0, 2, -1, 1, Q("2.17 mm")),
    Sketcher.Constraint("DistanceX", 4, 2, -1, 1, Q("1.92 mm")),
    Sketcher.Constraint("DistanceY", 4, 2, -1, 1, Q("0.65 mm")),
])
sketch11.setExpression("Constraints[18]", "Params.sketch11_width")
sketch11.setExpression("Constraints[19]", "Params.sketch11_width2")
pad3 = doc.addObject("PartDesign::Pad", "Pad002")
body2.addObject(pad3)
pad3.Profile = sketch11
pad3.setExpression("Length", "Params.pad3_length")
body3 = doc.addObject("PartDesign::Body", "Body002")

# Sketch on XY plane
sketch12 = doc.addObject("Sketcher::SketchObject", "Sketch011")
body3.addObject(sketch12)
sketch12.AttachmentSupport = (doc.getObject("XY_Plane002"), [""])
sketch12.MapMode = "FlatFace"
sketch12.AttachmentOffset = App.Placement(V(0, 0, -6), App.Rotation())
sketch12.addGeometry([
    Part.LineSegment(V(0.4, 0.9, 0), V(0.4, -0.9, 0)),  # 0
    Part.LineSegment(V(0.4, -0.9, 0), V(2.2, -0.9, 0)),  # 1
    Part.LineSegment(V(2.2, -0.9, 0), V(2.2, 0.9, 0)),  # 2
    Part.LineSegment(V(2.2, 0.9, 0), V(0.4, 0.9, 0)),  # 3
    Part.LineSegment(V(1.9, -0.7, 0), V(0.6, -0.7, 0)),  # 4
    Part.LineSegment(V(0.6, -0.7, 0), V(0.6, 0.7, 0)),  # 5
    Part.LineSegment(V(0.6, 0.7, 0), V(1.9, 0.7, 0)),  # 6
    Part.LineSegment(V(1.9, 0.7, 0), V(1.9, -0.7, 0)),  # 7
], False)
sketch12.addConstraint([
    Sketcher.Constraint("Coincident", 0, 2, 1, 1),
    Sketcher.Constraint("Coincident", 1, 2, 2, 1),
    Sketcher.Constraint("Coincident", 2, 2, 3, 1),
    Sketcher.Constraint("Coincident", 3, 2, 0, 1),
    Sketcher.Constraint("Coincident", 4, 2, 5, 1),
    Sketcher.Constraint("Coincident", 5, 2, 6, 1),
    Sketcher.Constraint("Coincident", 6, 2, 7, 1),
    Sketcher.Constraint("Coincident", 7, 2, 4, 1),
    Sketcher.Constraint("Vertical", 0),
    Sketcher.Constraint("Horizontal", 1),
    Sketcher.Constraint("Vertical", 2),
    Sketcher.Constraint("Horizontal", 3),
    Sketcher.Constraint("Horizontal", 4),
    Sketcher.Constraint("Vertical", 5),
    Sketcher.Constraint("Horizontal", 6),
    Sketcher.Constraint("Vertical", 7),
    Sketcher.Constraint("Equal", 3, 0),
    Sketcher.Constraint("Equal", 6, 5),
    Sketcher.Constraint("DistanceX", 1, 1, 1, 2, Q("1.8 mm")),
    Sketcher.Constraint("DistanceX", 4, 2, 4, 1, Q("1.3 mm")),
    Sketcher.Constraint("DistanceY", 0, 2, -1, 1, Q("0.9 mm")),
    Sketcher.Constraint("DistanceX", -1, 1, 0, 2, Q("0.37 mm")),
    Sketcher.Constraint("DistanceX", -1, 1, 4, 2, Q("0.62 mm")),
    Sketcher.Constraint("DistanceY", 4, 2, -1, 1, Q("0.65 mm")),
])
sketch12.setExpression("Constraints[18]", "Params.sketch12_width")
sketch12.setExpression("Constraints[19]", "Params.sketch12_width2")
pad4 = doc.addObject("PartDesign::Pad", "Pad003")
body3.addObject(pad4)
pad4.Profile = sketch12
pad4.setExpression("Length", "Params.pad4_length")
body2.AllowCompound = True
doc.recompute()

boolean = doc.addObject("PartDesign::Boolean", "Boolean")
body2.addObject(boolean)
boolean.Type = "Fuse"
boolean.addObjects([body3])

# Sketch on XZ plane
sketch13 = doc.addObject("Sketcher::SketchObject", "Sketch012")
body2.addObject(sketch13)
sketch13.AttachmentSupport = (doc.getObject("XZ_Plane001"), [""])
sketch13.MapMode = "FlatFace"
sketch13.AttachmentOffset = App.Placement(V(0, 0, 0.9), App.Rotation())
sketch13.addGeometry([
    Part.LineSegment(V(-2.2, -1.4, 0), V(-2.2, -2.4, 0)),  # 0
    Part.LineSegment(V(-2.2, -2.4, 0), V(-0.4, -2.4, 0)),  # 1
    Part.LineSegment(V(-0.4, -2.4, 0), V(-0.4, -1.4, 0)),  # 2
    Part.LineSegment(V(-0.4, -1.4, 0), V(-2.2, -1.4, 0)),  # 3
    Part.LineSegment(V(0.4, -1.4, 0), V(0.4, -2.4, 0)),  # 4
    Part.LineSegment(V(0.4, -2.4, 0), V(2.2, -2.4, 0)),  # 5
    Part.LineSegment(V(2.2, -2.4, 0), V(2.2, -1.4, 0)),  # 6
    Part.LineSegment(V(2.2, -1.4, 0), V(0.4, -1.4, 0)),  # 7
], False)
sketch13.addConstraint([
    Sketcher.Constraint("Coincident", 0, 2, 1, 1),
    Sketcher.Constraint("Coincident", 1, 2, 2, 1),
    Sketcher.Constraint("Coincident", 2, 2, 3, 1),
    Sketcher.Constraint("Coincident", 3, 2, 0, 1),
    Sketcher.Constraint("Coincident", 4, 2, 5, 1),
    Sketcher.Constraint("Coincident", 5, 2, 6, 1),
    Sketcher.Constraint("Coincident", 6, 2, 7, 1),
    Sketcher.Constraint("Coincident", 7, 2, 4, 1),
    Sketcher.Constraint("Vertical", 0),
    Sketcher.Constraint("Horizontal", 1),
    Sketcher.Constraint("Vertical", 2),
    Sketcher.Constraint("Horizontal", 3),
    Sketcher.Constraint("Vertical", 4),
    Sketcher.Constraint("Horizontal", 5),
    Sketcher.Constraint("Vertical", 6),
    Sketcher.Constraint("Horizontal", 7),
    Sketcher.Constraint("Symmetric", 1, 2, 4, 2, -2),
    Sketcher.Constraint("Symmetric", 3, 2, 6, 2, -2),
    Sketcher.Constraint("DistanceY", 0, 2, 0, 1, Q("1 mm")),
    Sketcher.Constraint("DistanceX", 1, 1, 1, 2, Q("1.8 mm")),
    Sketcher.Constraint("DistanceY", 0, 2, -1, 1, Q("2.4 mm")),
    Sketcher.Constraint("DistanceX", 0, 2, -1, 1, Q("2.17 mm")),
])
sketch13.setExpression("Constraints[18]", "Params.sketch13_height")
sketch13.setExpression("Constraints[19]", "Params.sketch13_width")
pad5 = doc.addObject("PartDesign::Pad", "Pad004")
body2.addObject(pad5)
pad5.Profile = sketch13
pad5.setExpression("Length", "Params.pad5_length")

doc.recompute()
